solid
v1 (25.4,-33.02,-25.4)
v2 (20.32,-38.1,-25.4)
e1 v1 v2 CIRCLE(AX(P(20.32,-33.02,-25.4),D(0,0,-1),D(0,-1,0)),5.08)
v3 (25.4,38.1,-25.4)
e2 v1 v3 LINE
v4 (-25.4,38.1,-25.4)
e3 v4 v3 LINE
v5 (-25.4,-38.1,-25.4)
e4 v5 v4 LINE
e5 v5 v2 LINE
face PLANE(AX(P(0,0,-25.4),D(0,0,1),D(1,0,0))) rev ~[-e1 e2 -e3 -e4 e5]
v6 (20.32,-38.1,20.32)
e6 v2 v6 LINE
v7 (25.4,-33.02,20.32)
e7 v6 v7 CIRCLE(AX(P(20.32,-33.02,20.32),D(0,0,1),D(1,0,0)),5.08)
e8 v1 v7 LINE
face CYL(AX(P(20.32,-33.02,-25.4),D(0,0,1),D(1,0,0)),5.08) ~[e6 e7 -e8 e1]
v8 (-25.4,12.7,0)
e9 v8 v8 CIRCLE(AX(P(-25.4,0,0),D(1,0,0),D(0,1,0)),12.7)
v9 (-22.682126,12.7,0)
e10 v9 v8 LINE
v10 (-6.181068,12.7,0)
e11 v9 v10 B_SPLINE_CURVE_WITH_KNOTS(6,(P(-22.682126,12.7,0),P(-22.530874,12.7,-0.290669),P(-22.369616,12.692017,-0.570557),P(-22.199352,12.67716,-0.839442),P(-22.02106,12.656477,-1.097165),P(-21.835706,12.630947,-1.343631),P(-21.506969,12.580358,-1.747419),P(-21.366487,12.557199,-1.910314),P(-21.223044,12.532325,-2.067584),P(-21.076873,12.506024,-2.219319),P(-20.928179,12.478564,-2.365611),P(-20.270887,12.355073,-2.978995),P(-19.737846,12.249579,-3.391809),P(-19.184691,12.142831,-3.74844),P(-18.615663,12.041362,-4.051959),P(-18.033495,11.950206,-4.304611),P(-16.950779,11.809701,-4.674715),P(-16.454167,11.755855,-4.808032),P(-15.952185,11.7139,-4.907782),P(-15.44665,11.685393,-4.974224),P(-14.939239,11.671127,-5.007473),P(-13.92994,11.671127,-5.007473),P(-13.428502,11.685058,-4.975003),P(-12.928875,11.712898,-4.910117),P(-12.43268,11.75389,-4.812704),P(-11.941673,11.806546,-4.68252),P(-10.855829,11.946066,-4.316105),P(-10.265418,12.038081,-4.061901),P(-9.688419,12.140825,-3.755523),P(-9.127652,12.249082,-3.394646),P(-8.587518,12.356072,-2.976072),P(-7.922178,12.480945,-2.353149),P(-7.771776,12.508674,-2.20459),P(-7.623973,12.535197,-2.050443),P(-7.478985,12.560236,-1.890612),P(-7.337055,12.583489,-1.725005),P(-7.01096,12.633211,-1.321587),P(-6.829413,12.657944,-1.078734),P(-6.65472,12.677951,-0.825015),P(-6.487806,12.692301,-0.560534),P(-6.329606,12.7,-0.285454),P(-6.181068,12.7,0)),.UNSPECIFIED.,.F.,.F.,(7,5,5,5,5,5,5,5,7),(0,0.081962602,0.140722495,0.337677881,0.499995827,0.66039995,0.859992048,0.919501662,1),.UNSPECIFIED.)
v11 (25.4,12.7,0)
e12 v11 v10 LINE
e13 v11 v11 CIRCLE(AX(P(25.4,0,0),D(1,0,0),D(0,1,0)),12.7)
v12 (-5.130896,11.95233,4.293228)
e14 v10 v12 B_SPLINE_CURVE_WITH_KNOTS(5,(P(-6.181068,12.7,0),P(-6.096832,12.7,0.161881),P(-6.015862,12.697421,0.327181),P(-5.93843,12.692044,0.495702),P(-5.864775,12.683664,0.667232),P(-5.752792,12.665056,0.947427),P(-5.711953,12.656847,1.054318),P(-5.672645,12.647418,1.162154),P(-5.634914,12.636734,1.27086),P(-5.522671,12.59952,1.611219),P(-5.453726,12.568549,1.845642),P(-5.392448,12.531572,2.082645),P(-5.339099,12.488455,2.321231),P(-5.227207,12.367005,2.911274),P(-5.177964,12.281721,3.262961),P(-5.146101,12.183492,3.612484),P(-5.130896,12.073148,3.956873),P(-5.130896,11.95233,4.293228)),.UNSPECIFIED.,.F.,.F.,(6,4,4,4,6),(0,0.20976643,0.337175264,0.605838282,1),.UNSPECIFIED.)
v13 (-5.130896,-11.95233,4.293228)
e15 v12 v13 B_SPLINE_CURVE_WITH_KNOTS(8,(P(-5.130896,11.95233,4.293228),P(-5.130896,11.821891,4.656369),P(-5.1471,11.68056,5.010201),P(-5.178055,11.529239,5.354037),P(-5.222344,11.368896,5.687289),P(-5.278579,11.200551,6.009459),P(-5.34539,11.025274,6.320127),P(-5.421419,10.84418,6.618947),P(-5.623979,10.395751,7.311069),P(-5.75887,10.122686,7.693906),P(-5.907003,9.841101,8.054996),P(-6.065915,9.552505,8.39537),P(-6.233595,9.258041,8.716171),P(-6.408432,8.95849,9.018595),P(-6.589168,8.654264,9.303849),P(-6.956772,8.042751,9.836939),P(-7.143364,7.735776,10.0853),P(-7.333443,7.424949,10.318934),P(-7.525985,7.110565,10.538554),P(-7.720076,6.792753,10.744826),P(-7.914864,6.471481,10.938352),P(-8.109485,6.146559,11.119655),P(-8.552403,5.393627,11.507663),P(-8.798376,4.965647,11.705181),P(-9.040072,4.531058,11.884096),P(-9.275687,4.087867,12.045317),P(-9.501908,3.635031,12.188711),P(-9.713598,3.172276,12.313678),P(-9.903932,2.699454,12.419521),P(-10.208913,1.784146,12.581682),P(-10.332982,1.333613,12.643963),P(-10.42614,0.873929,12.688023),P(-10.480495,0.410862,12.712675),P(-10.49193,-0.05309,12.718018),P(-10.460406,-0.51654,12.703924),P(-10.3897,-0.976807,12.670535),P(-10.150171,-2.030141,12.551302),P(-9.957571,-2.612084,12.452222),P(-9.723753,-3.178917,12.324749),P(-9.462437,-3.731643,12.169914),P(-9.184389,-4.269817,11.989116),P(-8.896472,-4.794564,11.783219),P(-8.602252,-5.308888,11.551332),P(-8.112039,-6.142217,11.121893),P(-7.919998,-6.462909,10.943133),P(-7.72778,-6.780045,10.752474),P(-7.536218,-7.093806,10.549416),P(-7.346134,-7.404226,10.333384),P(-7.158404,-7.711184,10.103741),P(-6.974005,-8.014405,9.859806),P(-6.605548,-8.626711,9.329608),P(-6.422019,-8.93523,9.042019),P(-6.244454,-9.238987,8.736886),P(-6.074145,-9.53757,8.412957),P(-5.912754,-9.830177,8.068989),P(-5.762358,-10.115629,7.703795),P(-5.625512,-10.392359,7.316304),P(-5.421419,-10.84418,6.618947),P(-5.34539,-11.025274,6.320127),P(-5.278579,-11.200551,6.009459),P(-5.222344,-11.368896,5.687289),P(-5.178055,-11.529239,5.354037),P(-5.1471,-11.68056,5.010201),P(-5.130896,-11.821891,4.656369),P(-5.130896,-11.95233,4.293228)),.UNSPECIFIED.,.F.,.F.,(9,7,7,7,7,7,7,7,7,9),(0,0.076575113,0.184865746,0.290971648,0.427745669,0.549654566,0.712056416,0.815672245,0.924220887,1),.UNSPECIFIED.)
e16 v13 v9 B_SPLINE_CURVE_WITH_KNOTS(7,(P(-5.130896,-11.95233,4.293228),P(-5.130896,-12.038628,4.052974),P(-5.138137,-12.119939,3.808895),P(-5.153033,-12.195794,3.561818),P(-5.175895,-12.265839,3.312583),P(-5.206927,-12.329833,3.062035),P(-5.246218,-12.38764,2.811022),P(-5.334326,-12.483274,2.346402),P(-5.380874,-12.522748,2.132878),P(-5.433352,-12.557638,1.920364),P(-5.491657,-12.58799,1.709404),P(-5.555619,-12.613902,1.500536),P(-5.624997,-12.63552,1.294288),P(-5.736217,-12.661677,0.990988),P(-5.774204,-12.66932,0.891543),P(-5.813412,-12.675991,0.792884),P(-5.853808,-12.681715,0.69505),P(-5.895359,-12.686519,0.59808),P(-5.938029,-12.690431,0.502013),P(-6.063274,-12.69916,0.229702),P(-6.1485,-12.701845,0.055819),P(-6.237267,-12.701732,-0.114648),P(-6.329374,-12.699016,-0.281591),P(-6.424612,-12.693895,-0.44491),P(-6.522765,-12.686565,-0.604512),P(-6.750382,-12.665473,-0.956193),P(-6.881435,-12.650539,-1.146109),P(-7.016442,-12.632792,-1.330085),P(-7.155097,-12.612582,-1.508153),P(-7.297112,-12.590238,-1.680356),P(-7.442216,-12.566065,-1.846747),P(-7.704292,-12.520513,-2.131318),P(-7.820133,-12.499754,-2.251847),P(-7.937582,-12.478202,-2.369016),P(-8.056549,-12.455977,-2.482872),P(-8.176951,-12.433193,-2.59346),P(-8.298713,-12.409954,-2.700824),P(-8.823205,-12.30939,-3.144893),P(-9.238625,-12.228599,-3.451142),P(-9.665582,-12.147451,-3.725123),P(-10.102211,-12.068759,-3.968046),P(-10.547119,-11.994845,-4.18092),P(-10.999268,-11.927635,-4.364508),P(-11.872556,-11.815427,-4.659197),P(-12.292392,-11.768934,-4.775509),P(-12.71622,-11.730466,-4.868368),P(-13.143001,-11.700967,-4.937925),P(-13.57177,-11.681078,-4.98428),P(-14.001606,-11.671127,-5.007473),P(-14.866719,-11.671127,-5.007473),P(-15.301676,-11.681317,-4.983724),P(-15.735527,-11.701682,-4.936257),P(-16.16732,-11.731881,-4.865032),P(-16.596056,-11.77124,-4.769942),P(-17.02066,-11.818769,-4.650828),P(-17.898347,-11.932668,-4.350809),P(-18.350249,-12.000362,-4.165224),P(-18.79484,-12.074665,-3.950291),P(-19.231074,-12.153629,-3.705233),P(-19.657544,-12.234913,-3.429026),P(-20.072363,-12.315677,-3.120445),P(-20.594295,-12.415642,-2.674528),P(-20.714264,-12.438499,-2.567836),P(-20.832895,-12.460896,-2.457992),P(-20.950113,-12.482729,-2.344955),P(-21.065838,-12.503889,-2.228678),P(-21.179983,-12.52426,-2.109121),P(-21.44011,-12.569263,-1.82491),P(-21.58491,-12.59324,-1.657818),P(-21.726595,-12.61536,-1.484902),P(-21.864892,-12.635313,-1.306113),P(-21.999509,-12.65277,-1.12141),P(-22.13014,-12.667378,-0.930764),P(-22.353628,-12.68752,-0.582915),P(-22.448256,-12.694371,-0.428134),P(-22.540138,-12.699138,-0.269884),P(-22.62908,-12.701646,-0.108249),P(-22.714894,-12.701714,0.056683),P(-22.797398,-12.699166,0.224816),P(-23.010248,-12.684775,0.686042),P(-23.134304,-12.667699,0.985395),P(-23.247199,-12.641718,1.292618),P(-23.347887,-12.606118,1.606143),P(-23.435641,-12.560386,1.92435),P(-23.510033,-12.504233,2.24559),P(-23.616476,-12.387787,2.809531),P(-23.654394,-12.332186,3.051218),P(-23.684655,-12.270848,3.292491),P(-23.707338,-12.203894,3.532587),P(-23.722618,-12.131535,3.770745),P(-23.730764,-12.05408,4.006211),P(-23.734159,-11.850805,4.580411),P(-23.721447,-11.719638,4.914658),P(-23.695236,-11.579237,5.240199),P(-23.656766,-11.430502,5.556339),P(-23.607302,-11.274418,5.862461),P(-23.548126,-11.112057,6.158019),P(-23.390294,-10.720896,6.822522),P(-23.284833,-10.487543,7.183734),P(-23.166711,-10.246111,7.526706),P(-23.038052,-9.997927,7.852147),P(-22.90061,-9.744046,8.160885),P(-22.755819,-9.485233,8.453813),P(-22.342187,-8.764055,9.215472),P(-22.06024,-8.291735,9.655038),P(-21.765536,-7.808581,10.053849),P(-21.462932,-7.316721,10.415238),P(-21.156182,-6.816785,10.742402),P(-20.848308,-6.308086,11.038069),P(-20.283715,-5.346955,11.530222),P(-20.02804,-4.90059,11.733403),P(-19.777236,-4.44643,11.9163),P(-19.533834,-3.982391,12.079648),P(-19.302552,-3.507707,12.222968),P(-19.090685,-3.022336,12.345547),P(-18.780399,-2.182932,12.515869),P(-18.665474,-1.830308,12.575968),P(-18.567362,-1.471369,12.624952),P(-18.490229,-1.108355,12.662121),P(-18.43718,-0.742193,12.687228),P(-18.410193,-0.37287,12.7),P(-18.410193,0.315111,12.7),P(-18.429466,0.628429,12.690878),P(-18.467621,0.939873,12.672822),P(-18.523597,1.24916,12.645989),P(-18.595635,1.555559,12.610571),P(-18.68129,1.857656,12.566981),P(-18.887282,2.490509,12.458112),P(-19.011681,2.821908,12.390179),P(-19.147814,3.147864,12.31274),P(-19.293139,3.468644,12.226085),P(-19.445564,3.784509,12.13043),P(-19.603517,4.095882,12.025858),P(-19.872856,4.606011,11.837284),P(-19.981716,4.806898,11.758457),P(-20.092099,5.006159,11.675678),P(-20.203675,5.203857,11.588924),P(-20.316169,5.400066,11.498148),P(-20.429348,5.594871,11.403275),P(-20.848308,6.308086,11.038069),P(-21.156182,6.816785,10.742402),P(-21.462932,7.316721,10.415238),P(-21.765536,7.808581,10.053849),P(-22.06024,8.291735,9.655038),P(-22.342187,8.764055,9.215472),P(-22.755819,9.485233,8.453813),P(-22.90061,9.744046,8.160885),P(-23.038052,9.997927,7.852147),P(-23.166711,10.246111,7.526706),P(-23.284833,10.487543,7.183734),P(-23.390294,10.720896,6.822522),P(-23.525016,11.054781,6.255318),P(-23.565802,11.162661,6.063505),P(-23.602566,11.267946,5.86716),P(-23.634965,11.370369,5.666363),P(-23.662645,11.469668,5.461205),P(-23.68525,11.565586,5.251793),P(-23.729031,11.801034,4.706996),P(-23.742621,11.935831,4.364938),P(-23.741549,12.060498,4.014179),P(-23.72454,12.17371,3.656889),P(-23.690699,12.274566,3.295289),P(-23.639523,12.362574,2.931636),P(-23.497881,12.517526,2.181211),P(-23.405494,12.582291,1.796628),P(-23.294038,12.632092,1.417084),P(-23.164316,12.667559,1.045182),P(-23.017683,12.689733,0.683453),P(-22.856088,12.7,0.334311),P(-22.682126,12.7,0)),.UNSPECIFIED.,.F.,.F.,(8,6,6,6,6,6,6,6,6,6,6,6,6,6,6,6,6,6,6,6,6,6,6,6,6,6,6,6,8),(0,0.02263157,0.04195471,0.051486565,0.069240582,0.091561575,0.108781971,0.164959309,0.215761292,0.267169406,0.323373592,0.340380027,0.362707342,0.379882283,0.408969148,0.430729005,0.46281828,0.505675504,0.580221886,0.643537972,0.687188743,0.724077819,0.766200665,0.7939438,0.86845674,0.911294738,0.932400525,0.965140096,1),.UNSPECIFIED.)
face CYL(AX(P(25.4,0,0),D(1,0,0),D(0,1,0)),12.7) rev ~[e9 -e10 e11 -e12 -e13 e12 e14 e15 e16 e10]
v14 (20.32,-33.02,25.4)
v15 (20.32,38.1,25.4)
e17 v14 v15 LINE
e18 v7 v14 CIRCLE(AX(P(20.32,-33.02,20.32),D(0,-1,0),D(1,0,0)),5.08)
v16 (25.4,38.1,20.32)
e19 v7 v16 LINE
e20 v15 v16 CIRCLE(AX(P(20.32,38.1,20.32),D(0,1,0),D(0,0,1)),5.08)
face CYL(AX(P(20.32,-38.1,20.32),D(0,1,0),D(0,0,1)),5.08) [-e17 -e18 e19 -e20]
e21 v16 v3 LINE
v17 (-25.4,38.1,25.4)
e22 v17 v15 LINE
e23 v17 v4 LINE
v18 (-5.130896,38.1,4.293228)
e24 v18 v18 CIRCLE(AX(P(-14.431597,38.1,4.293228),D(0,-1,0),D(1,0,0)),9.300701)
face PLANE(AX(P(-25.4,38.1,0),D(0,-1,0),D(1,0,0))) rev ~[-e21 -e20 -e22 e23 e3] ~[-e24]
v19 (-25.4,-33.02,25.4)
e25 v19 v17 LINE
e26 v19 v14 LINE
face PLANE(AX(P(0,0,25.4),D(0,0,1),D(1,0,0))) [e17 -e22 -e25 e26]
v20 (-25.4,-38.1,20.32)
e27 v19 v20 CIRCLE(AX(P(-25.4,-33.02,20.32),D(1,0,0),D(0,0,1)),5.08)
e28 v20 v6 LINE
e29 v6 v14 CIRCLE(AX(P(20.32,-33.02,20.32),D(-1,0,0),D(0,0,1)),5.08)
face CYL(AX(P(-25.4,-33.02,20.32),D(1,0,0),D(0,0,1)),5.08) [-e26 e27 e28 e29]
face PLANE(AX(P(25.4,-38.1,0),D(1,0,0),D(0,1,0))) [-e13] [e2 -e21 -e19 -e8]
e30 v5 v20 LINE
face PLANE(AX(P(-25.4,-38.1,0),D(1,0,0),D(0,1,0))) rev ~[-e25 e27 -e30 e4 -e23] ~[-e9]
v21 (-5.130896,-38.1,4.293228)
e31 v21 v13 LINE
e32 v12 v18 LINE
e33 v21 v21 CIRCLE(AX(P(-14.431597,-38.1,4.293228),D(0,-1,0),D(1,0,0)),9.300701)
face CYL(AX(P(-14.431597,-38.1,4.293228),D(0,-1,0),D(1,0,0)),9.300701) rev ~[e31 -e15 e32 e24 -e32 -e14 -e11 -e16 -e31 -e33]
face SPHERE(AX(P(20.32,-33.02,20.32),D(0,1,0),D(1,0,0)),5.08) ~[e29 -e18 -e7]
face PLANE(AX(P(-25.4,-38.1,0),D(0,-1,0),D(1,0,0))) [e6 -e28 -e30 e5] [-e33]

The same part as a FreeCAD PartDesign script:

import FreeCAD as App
import Part
import Sketcher

V = App.Vector
Q = App.Units.Quantity


def edges_at(feature, points):
    """Names of the edges that pass closest to the given points."""
    edges = feature.Shape.Edges
    near = lambda p: min(range(len(edges)), key=lambda i: edges[i].distToShape(Part.Vertex(*p))[0])
    return sorted({f"Edge{near(p) + 1}" for p in points})


def add_polygon(sketch, points):
    """Adds a closed chain of lines whose ends are joined by coincident constraints."""
    first, n = sketch.GeometryCount, len(points)
    for a, b in zip(points, points[1:] + points[:1]):
        sketch.addGeometry(Part.LineSegment(App.Vector(*a, 0), App.Vector(*b, 0)), False)
    for i in range(n):
        sketch.addConstraint(Sketcher.Constraint("Coincident", first + i, 2, first + (i + 1) % n, 1))

doc = App.newDocument("Part")
body = doc.addObject("PartDesign::Body", "Body")

# Sketch on XY plane
sketch1 = body.newObject("Sketcher::SketchObject", "Sketch")
sketch1.AttachmentSupport = (doc.getObject("XY_Plane"), [""])
sketch1.MapMode = "FlatFace"
add_polygon(sketch1, [(-25, 38), (-25, -38), (25, -38), (25, 38)])  # lines 0-3
sketch1.addConstraint([
    Sketcher.Constraint("Vertical", 0),
    Sketcher.Constraint("Horizontal", 1),
    Sketcher.Constraint("Vertical", 2),
    Sketcher.Constraint("Horizontal", 3),
    Sketcher.Constraint("Symmetric", 0, 2, 2, 2, -1, 1),
    Sketcher.Constraint("DistanceX", 1, 1, 1, 2, Q("2 in")),
    Sketcher.Constraint("DistanceY", 0, 2, 0, 1, Q("3 in")),
])
pad1 = body.newObject("PartDesign::Pad", "Pad")
pad1.Profile = sketch1
pad1.Length = Q("2 in")
pad1.Midplane = True
doc.recompute()

fillet = body.newObject("PartDesign::Fillet", "Fillet")
fillet.Base = (pad1, edges_at(pad1, [(25.4, 0, 25.4), (25.4, -38.1, 0), (0, -38.1, 25.4)]))
fillet.Radius = Q("0.2 in")

# Sketch on YZ plane
sketch2 = body.newObject("Sketcher::SketchObject", "Sketch001")
sketch2.AttachmentSupport = (doc.getObject("YZ_Plane"), [""])
sketch2.MapMode = "FlatFace"
sketch2.AttachmentOffset = App.Placement(V(0, 0, 1 * 25.4), App.Rotation())
sketch2.addGeometry(Part.Circle(V(0, 0, 0), V(0, 0, 1), 13), False)
sketch2.addConstraint([
    Sketcher.Constraint("Coincident", 0, 3, -1, 1),
    Sketcher.Constraint("Diameter", 0, Q("1 in")),
])
pocket1 = body.newObject("PartDesign::Pocket", "Pocket")
pocket1.Profile = sketch2
pocket1.Type = "ThroughAll"

# Sketch on XZ plane
sketch3 = body.newObject("Sketcher::SketchObject", "Sketch002")
sketch3.AttachmentSupport = (doc.getObject("XZ_Plane"), [""])
sketch3.MapMode = "FlatFace"
sketch3.AttachmentOffset = App.Placement(V(0, 0, 1.5 * 25.4), App.Rotation())
sketch3.addGeometry(Part.Circle(V(-14, 4, 0), V(0, 0, 1), 9), False)
sketch3.addConstraint([
    Sketcher.Constraint("Diameter", 0, Q("18.601402 mm")),
    Sketcher.Constraint("DistanceX", 0, 3, -1, 1, Q("14.431597 mm")),
    Sketcher.Constraint("DistanceY", -1, 1, 0, 3, Q("4.293228 mm")),
])
pocket2 = body.newObject("PartDesign::Pocket", "Pocket001")
pocket2.Profile = sketch3
pocket2.Type = "ThroughAll"

doc.recompute()
